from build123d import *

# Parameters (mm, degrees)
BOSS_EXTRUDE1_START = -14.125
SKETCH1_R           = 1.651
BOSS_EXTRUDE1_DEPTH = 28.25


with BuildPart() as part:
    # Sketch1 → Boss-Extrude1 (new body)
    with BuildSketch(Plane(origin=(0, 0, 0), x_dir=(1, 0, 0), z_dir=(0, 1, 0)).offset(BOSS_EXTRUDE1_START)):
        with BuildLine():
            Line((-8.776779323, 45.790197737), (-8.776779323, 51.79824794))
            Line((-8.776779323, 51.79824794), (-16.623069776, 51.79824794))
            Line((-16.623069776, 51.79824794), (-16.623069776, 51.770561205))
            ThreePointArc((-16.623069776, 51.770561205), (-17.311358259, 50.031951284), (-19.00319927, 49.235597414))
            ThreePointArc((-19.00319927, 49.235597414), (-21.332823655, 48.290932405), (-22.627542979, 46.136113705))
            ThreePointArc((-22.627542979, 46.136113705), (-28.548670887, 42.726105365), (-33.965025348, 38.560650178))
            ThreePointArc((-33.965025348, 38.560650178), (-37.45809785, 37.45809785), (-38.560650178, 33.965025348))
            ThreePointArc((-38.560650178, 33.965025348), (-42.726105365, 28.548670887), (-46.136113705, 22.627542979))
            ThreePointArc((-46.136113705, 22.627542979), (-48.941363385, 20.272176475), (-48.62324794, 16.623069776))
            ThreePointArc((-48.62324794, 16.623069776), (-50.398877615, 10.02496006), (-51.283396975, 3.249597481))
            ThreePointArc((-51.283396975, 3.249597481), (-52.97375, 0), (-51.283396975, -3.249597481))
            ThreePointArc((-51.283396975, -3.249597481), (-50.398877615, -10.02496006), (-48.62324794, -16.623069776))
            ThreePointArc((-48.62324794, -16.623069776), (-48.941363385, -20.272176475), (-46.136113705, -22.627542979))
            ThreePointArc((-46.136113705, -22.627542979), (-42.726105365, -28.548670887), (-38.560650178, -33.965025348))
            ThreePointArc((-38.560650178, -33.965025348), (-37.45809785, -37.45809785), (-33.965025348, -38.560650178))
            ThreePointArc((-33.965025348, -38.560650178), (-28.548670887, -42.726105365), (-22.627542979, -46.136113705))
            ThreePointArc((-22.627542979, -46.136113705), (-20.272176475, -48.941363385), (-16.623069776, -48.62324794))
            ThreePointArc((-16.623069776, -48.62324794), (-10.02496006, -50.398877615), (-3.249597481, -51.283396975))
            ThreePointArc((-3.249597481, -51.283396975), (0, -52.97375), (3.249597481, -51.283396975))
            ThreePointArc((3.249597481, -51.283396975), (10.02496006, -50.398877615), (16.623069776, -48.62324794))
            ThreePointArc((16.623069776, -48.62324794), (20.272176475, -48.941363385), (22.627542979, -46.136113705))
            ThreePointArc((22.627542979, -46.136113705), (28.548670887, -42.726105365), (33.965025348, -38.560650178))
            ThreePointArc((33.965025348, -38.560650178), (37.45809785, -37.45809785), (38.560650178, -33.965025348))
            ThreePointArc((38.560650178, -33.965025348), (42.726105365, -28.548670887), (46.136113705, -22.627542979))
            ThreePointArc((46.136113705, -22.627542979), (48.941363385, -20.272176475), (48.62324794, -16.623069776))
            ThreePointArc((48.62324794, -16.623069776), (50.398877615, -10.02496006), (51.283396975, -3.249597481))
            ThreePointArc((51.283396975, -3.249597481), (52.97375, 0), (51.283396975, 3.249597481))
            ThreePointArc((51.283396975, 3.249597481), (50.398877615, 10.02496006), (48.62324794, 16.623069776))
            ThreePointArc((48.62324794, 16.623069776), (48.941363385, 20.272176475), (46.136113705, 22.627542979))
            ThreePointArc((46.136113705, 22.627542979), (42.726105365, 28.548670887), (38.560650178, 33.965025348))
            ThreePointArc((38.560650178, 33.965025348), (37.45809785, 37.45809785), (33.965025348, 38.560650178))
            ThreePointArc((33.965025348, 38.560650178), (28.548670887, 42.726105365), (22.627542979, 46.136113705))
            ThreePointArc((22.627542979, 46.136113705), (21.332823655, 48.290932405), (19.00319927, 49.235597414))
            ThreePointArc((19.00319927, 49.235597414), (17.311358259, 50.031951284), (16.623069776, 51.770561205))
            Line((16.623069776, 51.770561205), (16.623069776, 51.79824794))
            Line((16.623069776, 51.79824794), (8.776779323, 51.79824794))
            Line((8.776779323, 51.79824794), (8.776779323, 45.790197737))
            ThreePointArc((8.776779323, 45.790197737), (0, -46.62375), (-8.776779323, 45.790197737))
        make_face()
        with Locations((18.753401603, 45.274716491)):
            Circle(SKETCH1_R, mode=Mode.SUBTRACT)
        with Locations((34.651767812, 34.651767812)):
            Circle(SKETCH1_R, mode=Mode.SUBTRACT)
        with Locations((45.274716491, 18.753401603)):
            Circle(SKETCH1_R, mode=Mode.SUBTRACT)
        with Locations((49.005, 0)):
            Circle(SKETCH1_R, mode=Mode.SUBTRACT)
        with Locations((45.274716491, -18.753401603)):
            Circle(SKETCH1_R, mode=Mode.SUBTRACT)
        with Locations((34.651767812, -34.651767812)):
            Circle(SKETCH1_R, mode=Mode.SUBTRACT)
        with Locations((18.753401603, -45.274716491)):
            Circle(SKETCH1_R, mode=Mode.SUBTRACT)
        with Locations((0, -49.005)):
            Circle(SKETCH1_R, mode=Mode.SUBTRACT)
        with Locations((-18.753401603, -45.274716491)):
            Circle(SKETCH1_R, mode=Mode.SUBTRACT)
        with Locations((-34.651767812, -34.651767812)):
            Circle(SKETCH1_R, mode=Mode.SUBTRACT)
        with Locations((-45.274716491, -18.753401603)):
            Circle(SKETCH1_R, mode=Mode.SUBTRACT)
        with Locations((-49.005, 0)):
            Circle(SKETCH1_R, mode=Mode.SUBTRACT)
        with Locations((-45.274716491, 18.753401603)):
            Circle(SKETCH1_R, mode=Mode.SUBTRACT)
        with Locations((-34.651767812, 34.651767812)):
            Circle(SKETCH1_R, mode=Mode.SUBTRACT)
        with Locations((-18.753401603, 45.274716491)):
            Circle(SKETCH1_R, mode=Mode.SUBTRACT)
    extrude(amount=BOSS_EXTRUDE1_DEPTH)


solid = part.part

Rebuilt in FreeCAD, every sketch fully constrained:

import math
import FreeCAD as App
import Part
import Sketcher

V = App.Vector
Q = App.Units.Quantity

doc = App.newDocument("Part")
body = doc.addObject("PartDesign::Body", "Body")

# Sketch on XZ plane
sketch1 = body.newObject("Sketcher::SketchObject", "Sketch")
sketch1.AttachmentSupport = (doc.getObject("XZ_Plane"), [""])
sketch1.MapMode = "FlatFace"
sketch1.AttachmentOffset = App.Placement(V(0, 0, 14.125), App.Rotation())
sketch1.addGeometry(Part.LineSegment(V(-8.777, -45.79, 0), V(-8.777, -51.798, 0)), False)
sketch1.addGeometry(Part.LineSegment(V(-8.777, -51.798, 0), V(-16.623, -51.798, 0)), False)
sketch1.addGeometry(Part.LineSegment(V(-16.623, -51.798, 0), V(-16.623, -51.771, 0)), False)
sketch1.addGeometry(Part.ArcOfCircle(Part.Circle(V(-19.163, -51.771, 0), V(0, 0, 1), 2.54), math.radians(0), math.radians(86)), False)
sketch1.addGeometry(Part.ArcOfCircle(Part.Circle(V(-18.753, -45.275, 0), V(0, 0, 1), 3.969), math.radians(-167), math.radians(-94)), False)
sketch1.addGeometry(Part.ArcOfCircle(Part.Circle(V(0, 0, 0), V(0, 0, 1), 51.386), math.radians(-131.37), math.radians(-116.13)), False)
sketch1.addGeometry(Part.ArcOfCircle(Part.Circle(V(-34.652, -34.652, 0), V(0, 0, 1), 3.969), math.radians(170), math.radians(280)), False)
sketch1.addGeometry(Part.ArcOfCircle(Part.Circle(V(0, 0, 0), V(0, 0, 1), 51.386), math.radians(-153.87), math.radians(-138.63)), False)
sketch1.addGeometry(Part.ArcOfCircle(Part.Circle(V(-45.275, -18.753, 0), V(0, 0, 1), 3.969), math.radians(148), math.radians(257)), False)
sketch1.addGeometry(Part.ArcOfCircle(Part.Circle(V(0, 0, 0), V(0, 0, 1), 51.386), math.radians(-176.37), math.radians(-161.13)), False)
sketch1.addGeometry(Part.ArcOfCircle(Part.Circle(V(-49.005, 0, 0), V(0, 0, 1), 3.969), math.radians(125), math.radians(235)), False)
sketch1.addGeometry(Part.ArcOfCircle(Part.Circle(V(0, 0, 0), V(0, 0, 1), 51.386), math.radians(161.13), math.radians(176.37)), False)
sketch1.addGeometry(Part.ArcOfCircle(Part.Circle(V(-45.275, 18.753, 0), V(0, 0, 1), 3.969), math.radians(103), math.radians(212)), False)
sketch1.addGeometry(Part.ArcOfCircle(Part.Circle(V(0, 0, 0), V(0, 0, 1), 51.386), math.radians(138.63), math.radians(153.87)), False)
sketch1.addGeometry(Part.ArcOfCircle(Part.Circle(V(-34.652, 34.652, 0), V(0, 0, 1), 3.969), math.radians(80), math.radians(190)), False)
sketch1.addGeometry(Part.ArcOfCircle(Part.Circle(V(0, 0, 0), V(0, 0, 1), 51.386), math.radians(116.13), math.radians(131.37)), False)
sketch1.addGeometry(Part.ArcOfCircle(Part.Circle(V(-18.753, 45.275, 0), V(0, 0, 1), 3.969), math.radians(58), math.radians(167)), False)
sketch1.addGeometry(Part.ArcOfCircle(Part.Circle(V(0, 0, 0), V(0, 0, 1), 51.386), math.radians(93.63), math.radians(108.87)), False)
sketch1.addGeometry(Part.ArcOfCircle(Part.Circle(V(0, 49.005, 0), V(0, 0, 1), 3.969), math.radians(35), math.radians(145)), False)
sketch1.addGeometry(Part.ArcOfCircle(Part.Circle(V(0, 0, 0), V(0, 0, 1), 51.386), math.radians(71.13), math.radians(86.37)), False)
sketch1.addGeometry(Part.ArcOfCircle(Part.Circle(V(18.753, 45.275, 0), V(0, 0, 1), 3.969), math.radians(13), math.radians(122)), False)
sketch1.addGeometry(Part.ArcOfCircle(Part.Circle(V(0, 0, 0), V(0, 0, 1), 51.386), math.radians(48.63), math.radians(63.87)), False)
sketch1.addGeometry(Part.ArcOfCircle(Part.Circle(V(34.652, 34.652, 0), V(0, 0, 1), 3.969), math.radians(-10), math.radians(100)), False)
sketch1.addGeometry(Part.ArcOfCircle(Part.Circle(V(0, 0, 0), V(0, 0, 1), 51.386), math.radians(26.13), math.radians(41.37)), False)
sketch1.addGeometry(Part.ArcOfCircle(Part.Circle(V(45.275, 18.753, 0), V(0, 0, 1), 3.969), math.radians(-32), math.radians(77)), False)
sketch1.addGeometry(Part.ArcOfCircle(Part.Circle(V(0, 0, 0), V(0, 0, 1), 51.386), math.radians(3.63), math.radians(18.87)), False)
sketch1.addGeometry(Part.ArcOfCircle(Part.Circle(V(49.005, 0, 0), V(0, 0, 1), 3.969), math.radians(-55), math.radians(55)), False)
sketch1.addGeometry(Part.ArcOfCircle(Part.Circle(V(0, 0, 0), V(0, 0, 1), 51.386), math.radians(-18.87), math.radians(-3.63)), False)
sketch1.addGeometry(Part.ArcOfCircle(Part.Circle(V(45.275, -18.753, 0), V(0, 0, 1), 3.969), math.radians(-77), math.radians(32)), False)
sketch1.addGeometry(Part.ArcOfCircle(Part.Circle(V(0, 0, 0), V(0, 0, 1), 51.386), math.radians(-41.37), math.radians(-26.13)), False)
sketch1.addGeometry(Part.ArcOfCircle(Part.Circle(V(34.652, -34.652, 0), V(0, 0, 1), 3.969), math.radians(-100), math.radians(10)), False)
sketch1.addGeometry(Part.ArcOfCircle(Part.Circle(V(0, 0, 0), V(0, 0, 1), 51.386), math.radians(-63.87), math.radians(-48.63)), False)
sketch1.addGeometry(Part.ArcOfCircle(Part.Circle(V(18.753, -45.275, 0), V(0, 0, 1), 3.969), math.radians(-86), math.radians(-13)), False)
sketch1.addGeometry(Part.ArcOfCircle(Part.Circle(V(19.163, -51.771, 0), V(0, 0, 1), 2.54), math.radians(94), math.radians(180)), False)
sketch1.addGeometry(Part.LineSegment(V(16.623, -51.771, 0), V(16.623, -51.798, 0)), False)
sketch1.addGeometry(Part.LineSegment(V(16.623, -51.798, 0), V(8.777, -51.798, 0)), False)
sketch1.addGeometry(Part.LineSegment(V(8.777, -51.798, 0), V(8.777, -45.79, 0)), False)
sketch1.addGeometry(Part.ArcOfCircle(Part.Circle(V(0, 0, 0), V(0, 0, 1), 46.624), math.radians(-79), math.radians(259)), False)
sketch1.addGeometry(Part.Circle(V(-34.652, 34.652, 0), V(0, 0, 1), 1.651), False)
sketch1.addGeometry(Part.Circle(V(-18.753, 45.275, 0), V(0, 0, 1), 1.651), False)
sketch1.addGeometry(Part.Circle(V(-45.275, 18.753, 0), V(0, 0, 1), 1.651), False)
sketch1.addGeometry(Part.Circle(V(0, 49.005, 0), V(0, 0, 1), 1.651), False)
sketch1.addGeometry(Part.Circle(V(18.753, 45.275, 0), V(0, 0, 1), 1.651), False)
sketch1.addGeometry(Part.Circle(V(34.652, 34.652, 0), V(0, 0, 1), 1.651), False)
sketch1.addGeometry(Part.Circle(V(45.275, 18.753, 0), V(0, 0, 1), 1.651), False)
sketch1.addGeometry(Part.Circle(V(-49.005, 0, 0), V(0, 0, 1), 1.651), False)
sketch1.addGeometry(Part.Circle(V(-45.275, -18.753, 0), V(0, 0, 1), 1.651), False)
sketch1.addGeometry(Part.Circle(V(-34.652, -34.652, 0), V(0, 0, 1), 1.651), False)
sketch1.addGeometry(Part.Circle(V(-18.753, -45.275, 0), V(0, 0, 1), 1.651), False)
sketch1.addGeometry(Part.Circle(V(49.005, 0, 0), V(0, 0, 1), 1.651), False)
sketch1.addGeometry(Part.Circle(V(45.275, -18.753, 0), V(0, 0, 1), 1.651), False)
sketch1.addGeometry(Part.Circle(V(18.753, -45.275, 0), V(0, 0, 1), 1.651), False)
sketch1.addGeometry(Part.Circle(V(34.652, -34.652, 0), V(0, 0, 1), 1.651), False)
sketch1.addConstraint(Sketcher.Constraint("Coincident", 0, 2, 1, 1))
sketch1.addConstraint(Sketcher.Constraint("Coincident", 1, 2, 2, 1))
sketch1.addConstraint(Sketcher.Constraint("Tangent", 2, 2, 3, 1))
sketch1.addConstraint(Sketcher.Constraint("Tangent", 3, 2, 4, 2))
sketch1.addConstraint(Sketcher.Constraint("Coincident", 4, 1, 5, 2))
sketch1.addConstraint(Sketcher.Constraint("Coincident", 5, 1, 6, 2))
sketch1.addConstraint(Sketcher.Constraint("Coincident", 6, 1, 7, 2))
sketch1.addConstraint(Sketcher.Constraint("Coincident", 7, 1, 8, 2))
sketch1.addConstraint(Sketcher.Constraint("Coincident", 8, 1, 9, 2))
sketch1.addConstraint(Sketcher.Constraint("Coincident", 9, 1, 10, 2))
sketch1.addConstraint(Sketcher.Constraint("Coincident", 10, 1, 11, 2))
sketch1.addConstraint(Sketcher.Constraint("Coincident", 11, 1, 12, 2))
sketch1.addConstraint(Sketcher.Constraint("Coincident", 12, 1, 13, 2))
sketch1.addConstraint(Sketcher.Constraint("Coincident", 13, 1, 14, 2))
sketch1.addConstraint(Sketcher.Constraint("Coincident", 14, 1, 15, 2))
sketch1.addConstraint(Sketcher.Constraint("Coincident", 15, 1, 16, 2))
sketch1.addConstraint(Sketcher.Constraint("Coincident", 16, 1, 17, 2))
sketch1.addConstraint(Sketcher.Constraint("Coincident", 17, 1, 18, 2))
sketch1.addConstraint(Sketcher.Constraint("Coincident", 18, 1, 19, 2))
sketch1.addConstraint(Sketcher.Constraint("Coincident", 19, 1, 20, 2))
sketch1.addConstraint(Sketcher.Constraint("Coincident", 20, 1, 21, 2))
sketch1.addConstraint(Sketcher.Constraint("Coincident", 21, 1, 22, 2))
sketch1.addConstraint(Sketcher.Constraint("Coincident", 22, 1, 23, 2))
sketch1.addConstraint(Sketcher.Constraint("Coincident", 23, 1, 24, 2))
sketch1.addConstraint(Sketcher.Constraint("Coincident", 24, 1, 25, 2))
sketch1.addConstraint(Sketcher.Constraint("Coincident", 25, 1, 26, 2))
sketch1.addConstraint(Sketcher.Constraint("Coincident", 26, 1, 27, 2))
sketch1.addConstraint(Sketcher.Constraint("Coincident", 27, 1, 28, 2))
sketch1.addConstraint(Sketcher.Constraint("Coincident", 28, 1, 29, 2))
sketch1.addConstraint(Sketcher.Constraint("Coincident", 29, 1, 30, 2))
sketch1.addConstraint(Sketcher.Constraint("Coincident", 30, 1, 31, 2))
sketch1.addConstraint(Sketcher.Constraint("Coincident", 31, 1, 32, 2))
sketch1.addConstraint(Sketcher.Constraint("Tangent", 32, 1, 33, 1))
sketch1.addConstraint(Sketcher.Constraint("Tangent", 33, 2, 34, 1))
sketch1.addConstraint(Sketcher.Constraint("Coincident", 34, 2, 35, 1))
sketch1.addConstraint(Sketcher.Constraint("Coincident", 35, 2, 36, 1))
sketch1.addConstraint(Sketcher.Constraint("Coincident", 36, 2, 37, 1))
sketch1.addConstraint(Sketcher.Constraint("Coincident", 37, 2, 0, 1))
sketch1.addConstraint(Sketcher.Constraint("Vertical", 0))
sketch1.addConstraint(Sketcher.Constraint("Horizontal", 1))
sketch1.addConstraint(Sketcher.Constraint("Vertical", 2))
sketch1.addConstraint(Sketcher.Constraint("Vertical", 34))
sketch1.addConstraint(Sketcher.Constraint("Horizontal", 35))
sketch1.addConstraint(Sketcher.Constraint("Vertical", 36))
sketch1.addConstraint(Sketcher.Constraint("Coincident", 5, 3, -1, 1))
sketch1.addConstraint(Sketcher.Constraint("Coincident", 7, 3, -1, 1))
sketch1.addConstraint(Sketcher.Constraint("Coincident", 9, 3, -1, 1))
sketch1.addConstraint(Sketcher.Constraint("Coincident", 11, 3, -1, 1))
sketch1.addConstraint(Sketcher.Constraint("Coincident", 13, 3, -1, 1))
sketch1.addConstraint(Sketcher.Constraint("Coincident", 15, 3, -1, 1))
sketch1.addConstraint(Sketcher.Constraint("Coincident", 17, 3, -1, 1))
sketch1.addConstraint(Sketcher.Constraint("Coincident", 19, 3, -1, 1))
sketch1.addConstraint(Sketcher.Constraint("Coincident", 21, 3, -1, 1))
sketch1.addConstraint(Sketcher.Constraint("Coincident", 23, 3, -1, 1))
sketch1.addConstraint(Sketcher.Constraint("Coincident", 25, 3, -1, 1))
sketch1.addConstraint(Sketcher.Constraint("Coincident", 27, 3, -1, 1))
sketch1.addConstraint(Sketcher.Constraint("Coincident", 29, 3, -1, 1))
sketch1.addConstraint(Sketcher.Constraint("Coincident", 31, 3, -1, 1))
sketch1.addConstraint(Sketcher.Constraint("Coincident", 37, 3, -1, 1))
sketch1.addConstraint(Sketcher.Constraint("Coincident", 38, 3, 14, 3))
sketch1.addConstraint(Sketcher.Constraint("Coincident", 39, 3, 16, 3))
sketch1.addConstraint(Sketcher.Constraint("Coincident", 40, 3, 12, 3))
sketch1.addConstraint(Sketcher.Constraint("Coincident", 41, 3, 18, 3))
sketch1.addConstraint(Sketcher.Constraint("Coincident", 42, 3, 20, 3))
sketch1.addConstraint(Sketcher.Constraint("Coincident", 43, 3, 22, 3))
sketch1.addConstraint(Sketcher.Constraint("Coincident", 44, 3, 24, 3))
sketch1.addConstraint(Sketcher.Constraint("Coincident", 45, 3, 10, 3))
sketch1.addConstraint(Sketcher.Constraint("Coincident", 46, 3, 8, 3))
sketch1.addConstraint(Sketcher.Constraint("Coincident", 47, 3, 6, 3))
sketch1.addConstraint(Sketcher.Constraint("Coincident", 48, 3, 4, 3))
sketch1.addConstraint(Sketcher.Constraint("Coincident", 49, 3, 26, 3))
sketch1.addConstraint(Sketcher.Constraint("Coincident", 50, 3, 28, 3))
sketch1.addConstraint(Sketcher.Constraint("Coincident", 51, 3, 32, 3))
sketch1.addConstraint(Sketcher.Constraint("Coincident", 52, 3, 30, 3))
sketch1.addConstraint(Sketcher.Constraint("Equal", 4, 6))
sketch1.addConstraint(Sketcher.Constraint("Equal", 5, 7))
sketch1.addConstraint(Sketcher.Constraint("Equal", 6, 8))
sketch1.addConstraint(Sketcher.Constraint("Equal", 7, 9))
sketch1.addConstraint(Sketcher.Constraint("Equal", 8, 10))
sketch1.addConstraint(Sketcher.Constraint("Equal", 9, 11))
sketch1.addConstraint(Sketcher.Constraint("Equal", 10, 12))
sketch1.addConstraint(Sketcher.Constraint("Equal", 11, 13))
sketch1.addConstraint(Sketcher.Constraint("Equal", 12, 14))
sketch1.addConstraint(Sketcher.Constraint("Equal", 13, 15))
sketch1.addConstraint(Sketcher.Constraint("Equal", 14, 16))
sketch1.addConstraint(Sketcher.Constraint("Equal", 15, 17))
sketch1.addConstraint(Sketcher.Constraint("Equal", 16, 18))
sketch1.addConstraint(Sketcher.Constraint("Equal", 17, 19))
sketch1.addConstraint(Sketcher.Constraint("Equal", 18, 20))
sketch1.addConstraint(Sketcher.Constraint("Equal", 19, 21))
sketch1.addConstraint(Sketcher.Constraint("Equal", 20, 22))
sketch1.addConstraint(Sketcher.Constraint("Equal", 21, 23))
sketch1.addConstraint(Sketcher.Constraint("Equal", 22, 24))
sketch1.addConstraint(Sketcher.Constraint("Equal", 23, 25))
sketch1.addConstraint(Sketcher.Constraint("Equal", 24, 26))
sketch1.addConstraint(Sketcher.Constraint("Equal", 25, 27))
sketch1.addConstraint(Sketcher.Constraint("Equal", 26, 28))
sketch1.addConstraint(Sketcher.Constraint("Equal", 27, 29))
sketch1.addConstraint(Sketcher.Constraint("Equal", 28, 30))
sketch1.addConstraint(Sketcher.Constraint("Equal", 29, 31))
sketch1.addConstraint(Sketcher.Constraint("Equal", 30, 32))
sketch1.addConstraint(Sketcher.Constraint("Equal", 3, 33))
sketch1.addConstraint(Sketcher.Constraint("Equal", 38, 39))
sketch1.addConstraint(Sketcher.Constraint("Equal", 39, 40))
sketch1.addConstraint(Sketcher.Constraint("Equal", 40, 41))
sketch1.addConstraint(Sketcher.Constraint("Equal", 41, 42))
sketch1.addConstraint(Sketcher.Constraint("Equal", 42, 43))
sketch1.addConstraint(Sketcher.Constraint("Equal", 43, 44))
sketch1.addConstraint(Sketcher.Constraint("Equal", 44, 45))
sketch1.addConstraint(Sketcher.Constraint("Equal", 45, 46))
sketch1.addConstraint(Sketcher.Constraint("Equal", 46, 47))
sketch1.addConstraint(Sketcher.Constraint("Equal", 47, 48))
sketch1.addConstraint(Sketcher.Constraint("Equal", 48, 49))
sketch1.addConstraint(Sketcher.Constraint("Equal", 49, 50))
sketch1.addConstraint(Sketcher.Constraint("Equal", 50, 51))
sketch1.addConstraint(Sketcher.Constraint("Equal", 51, 52))
sketch1.addConstraint(Sketcher.Constraint("Symmetric", 4, 3, 20, 3, -1, 1))
sketch1.addConstraint(Sketcher.Constraint("Symmetric", 6, 3, 22, 3, -1, 1))
sketch1.addConstraint(Sketcher.Constraint("Symmetric", 8, 3, 24, 3, -1, 1))
sketch1.addConstraint(Sketcher.Constraint("Symmetric", 10, 3, 26, 3, -1, 1))
sketch1.addConstraint(Sketcher.Constraint("Symmetric", 12, 3, 28, 3, -1, 1))
sketch1.addConstraint(Sketcher.Constraint("Symmetric", 14, 3, 30, 3, -1, 1))
sketch1.addConstraint(Sketcher.Constraint("Symmetric", 16, 3, 32, 3, -1, 1))
sketch1.addConstraint(Sketcher.Constraint("Symmetric", 16, 3, 20, 3, -2))
sketch1.addConstraint(Sketcher.Constraint("Symmetric", 14, 3, 22, 3, -2))
sketch1.addConstraint(Sketcher.Constraint("Symmetric", 12, 3, 24, 3, -2))
sketch1.addConstraint(Sketcher.Constraint("Symmetric", 1, 2, 34, 2, -2))
sketch1.addConstraint(Sketcher.Constraint("PointOnObject", 10, 3, -1))
sketch1.addConstraint(Sketcher.Constraint("PointOnObject", 18, 3, -2))
sketch1.addConstraint(Sketcher.Constraint("Horizontal", 36, 2, 37, 2))
sketch1.addConstraint(Sketcher.Constraint("Vertical", 2, 2, 16, 1))
sketch1.addConstraint(Sketcher.Constraint("Radius", 3, Q("0.1 in")))
sketch1.addConstraint(Sketcher.Constraint("Diameter", 38, Q("0.13 in")))
sketch1.addConstraint(Sketcher.Constraint("Radius", 4, Q("0.15625 in")))
sketch1.addConstraint(Sketcher.Constraint("Radius", 5, 51.38625))
sketch1.addConstraint(Sketcher.Constraint("Radius", 37, 46.62375))
sketch1.addConstraint(Sketcher.Constraint("DistanceX", 1, 2, 1, 1, 7.84629))
sketch1.addConstraint(Sketcher.Constraint("DistanceY", 0, 2, 0, 1, 6.00805))
sketch1.addConstraint(Sketcher.Constraint("DistanceX", 4, 3, -1, 1, 18.753402))
sketch1.addConstraint(Sketcher.Constraint("DistanceY", 8, 3, -1, 1, 18.753402))
sketch1.addConstraint(Sketcher.Constraint("DistanceX", 10, 3, -1, 1, 49.005))
sketch1.addConstraint(Sketcher.Constraint("DistanceY", -1, 1, 18, 3, 49.005))
sketch1.addConstraint(Sketcher.Constraint("DistanceX", 3, 2, -1, 1, 19.003199))
sketch1.addConstraint(Sketcher.Constraint("DistanceY", 5, 1, -1, 1, 38.56065))
sketch1.addConstraint(Sketcher.Constraint("DistanceX", 6, 1, -1, 1, 38.56065))
sketch1.addConstraint(Sketcher.Constraint("DistanceY", 8, 1, -1, 1, 16.62307))
pad1 = body.newObject("PartDesign::Pad", "Pad")
pad1.Profile = sketch1
pad1.Length = 28.25
pad1.Reversed = True

doc.recompute()
